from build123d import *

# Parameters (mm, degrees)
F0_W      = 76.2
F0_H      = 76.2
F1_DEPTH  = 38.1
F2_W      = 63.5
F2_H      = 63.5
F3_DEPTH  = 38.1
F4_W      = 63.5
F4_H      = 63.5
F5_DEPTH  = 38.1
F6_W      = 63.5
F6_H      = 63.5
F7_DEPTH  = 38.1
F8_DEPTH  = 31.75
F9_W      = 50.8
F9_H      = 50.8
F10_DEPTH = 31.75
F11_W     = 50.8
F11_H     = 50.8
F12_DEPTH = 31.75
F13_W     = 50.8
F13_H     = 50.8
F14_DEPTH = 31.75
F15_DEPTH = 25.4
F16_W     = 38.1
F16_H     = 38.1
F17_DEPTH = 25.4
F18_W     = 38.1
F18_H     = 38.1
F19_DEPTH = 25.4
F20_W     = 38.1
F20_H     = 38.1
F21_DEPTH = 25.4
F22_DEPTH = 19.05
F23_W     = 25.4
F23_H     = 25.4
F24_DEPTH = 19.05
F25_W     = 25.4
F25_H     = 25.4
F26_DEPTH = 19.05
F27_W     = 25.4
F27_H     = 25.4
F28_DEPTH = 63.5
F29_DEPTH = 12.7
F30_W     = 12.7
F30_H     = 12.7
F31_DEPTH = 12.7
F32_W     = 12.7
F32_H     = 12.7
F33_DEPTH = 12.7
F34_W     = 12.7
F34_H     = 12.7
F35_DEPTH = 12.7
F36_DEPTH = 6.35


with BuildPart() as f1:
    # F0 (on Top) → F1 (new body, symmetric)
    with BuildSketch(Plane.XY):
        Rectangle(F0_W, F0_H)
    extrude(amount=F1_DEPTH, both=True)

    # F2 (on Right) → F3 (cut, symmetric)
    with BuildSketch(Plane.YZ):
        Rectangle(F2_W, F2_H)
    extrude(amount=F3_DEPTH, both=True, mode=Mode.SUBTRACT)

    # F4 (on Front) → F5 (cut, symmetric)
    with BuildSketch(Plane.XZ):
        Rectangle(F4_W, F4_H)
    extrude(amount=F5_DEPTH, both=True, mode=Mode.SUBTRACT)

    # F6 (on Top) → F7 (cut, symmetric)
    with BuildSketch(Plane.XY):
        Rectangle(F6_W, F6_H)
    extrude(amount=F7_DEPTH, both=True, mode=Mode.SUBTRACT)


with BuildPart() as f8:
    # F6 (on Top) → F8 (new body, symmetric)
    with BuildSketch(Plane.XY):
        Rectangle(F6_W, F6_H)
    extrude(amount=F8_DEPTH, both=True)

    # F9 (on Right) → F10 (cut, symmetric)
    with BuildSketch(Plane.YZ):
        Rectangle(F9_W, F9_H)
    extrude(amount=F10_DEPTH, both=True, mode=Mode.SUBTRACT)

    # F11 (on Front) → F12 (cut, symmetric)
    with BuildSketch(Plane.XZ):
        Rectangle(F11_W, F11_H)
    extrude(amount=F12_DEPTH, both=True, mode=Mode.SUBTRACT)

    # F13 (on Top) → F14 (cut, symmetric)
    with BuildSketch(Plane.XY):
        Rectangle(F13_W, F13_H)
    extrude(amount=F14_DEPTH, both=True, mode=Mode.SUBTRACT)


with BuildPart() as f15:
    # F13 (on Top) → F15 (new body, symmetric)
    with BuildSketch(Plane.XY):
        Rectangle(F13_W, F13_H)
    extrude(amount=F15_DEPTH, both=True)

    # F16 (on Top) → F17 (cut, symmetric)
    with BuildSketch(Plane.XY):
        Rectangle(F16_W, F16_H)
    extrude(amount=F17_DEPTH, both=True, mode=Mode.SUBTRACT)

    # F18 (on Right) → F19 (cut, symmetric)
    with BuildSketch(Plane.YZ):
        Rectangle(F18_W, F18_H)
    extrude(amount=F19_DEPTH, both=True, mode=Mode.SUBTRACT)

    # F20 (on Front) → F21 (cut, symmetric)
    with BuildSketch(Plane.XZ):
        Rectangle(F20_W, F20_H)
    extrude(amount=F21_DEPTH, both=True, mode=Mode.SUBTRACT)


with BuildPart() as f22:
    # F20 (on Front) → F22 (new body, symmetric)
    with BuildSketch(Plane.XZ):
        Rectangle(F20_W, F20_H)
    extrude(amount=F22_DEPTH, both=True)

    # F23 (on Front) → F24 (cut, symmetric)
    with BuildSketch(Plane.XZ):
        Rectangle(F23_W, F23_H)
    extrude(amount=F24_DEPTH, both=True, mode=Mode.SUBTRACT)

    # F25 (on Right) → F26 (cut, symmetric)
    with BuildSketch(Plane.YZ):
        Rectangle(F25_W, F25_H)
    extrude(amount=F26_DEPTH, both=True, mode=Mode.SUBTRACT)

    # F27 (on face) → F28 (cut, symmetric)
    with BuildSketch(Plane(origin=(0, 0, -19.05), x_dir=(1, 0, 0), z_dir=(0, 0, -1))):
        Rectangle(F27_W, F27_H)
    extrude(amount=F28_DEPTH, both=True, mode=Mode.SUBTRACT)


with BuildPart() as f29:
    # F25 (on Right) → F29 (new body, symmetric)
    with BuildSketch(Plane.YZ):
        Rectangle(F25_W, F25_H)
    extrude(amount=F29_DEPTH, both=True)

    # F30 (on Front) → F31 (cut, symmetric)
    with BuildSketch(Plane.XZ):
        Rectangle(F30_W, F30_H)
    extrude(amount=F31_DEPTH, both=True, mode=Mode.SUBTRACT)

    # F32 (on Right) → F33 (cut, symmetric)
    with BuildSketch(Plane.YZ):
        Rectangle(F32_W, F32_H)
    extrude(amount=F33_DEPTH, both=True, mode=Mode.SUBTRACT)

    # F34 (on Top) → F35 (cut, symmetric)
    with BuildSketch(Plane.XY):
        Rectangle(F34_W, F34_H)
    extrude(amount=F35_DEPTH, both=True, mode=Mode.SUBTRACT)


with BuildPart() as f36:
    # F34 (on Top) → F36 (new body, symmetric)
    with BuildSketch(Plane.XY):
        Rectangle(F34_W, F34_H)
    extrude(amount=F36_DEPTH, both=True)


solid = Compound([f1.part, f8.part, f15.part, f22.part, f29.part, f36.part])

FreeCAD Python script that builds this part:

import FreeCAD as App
import Part
import Sketcher

V = App.Vector
Q = App.Units.Quantity

doc = App.newDocument("Part")
body = doc.addObject("PartDesign::Body", "Body")

# Sketch on XY plane
sketch1 = body.newObject("Sketcher::SketchObject", "Sketch")
sketch1.AttachmentSupport = (doc.getObject("XY_Plane"), [""])
sketch1.MapMode = "FlatFace"
sketch1.addGeometry(Part.LineSegment(V(-38.1, 38.1, 0), V(-38.1, -38.1, 0)), False)
sketch1.addGeometry(Part.LineSegment(V(-38.1, -38.1, 0), V(38.1, -38.1, 0)), False)
sketch1.addGeometry(Part.LineSegment(V(38.1, -38.1, 0), V(38.1, 38.1, 0)), False)
sketch1.addGeometry(Part.LineSegment(V(38.1, 38.1, 0), V(-38.1, 38.1, 0)), False)
sketch1.addConstraint(Sketcher.Constraint("Coincident", 0, 2, 1, 1))
sketch1.addConstraint(Sketcher.Constraint("Coincident", 1, 2, 2, 1))
sketch1.addConstraint(Sketcher.Constraint("Coincident", 2, 2, 3, 1))
sketch1.addConstraint(Sketcher.Constraint("Coincident", 3, 2, 0, 1))
sketch1.addConstraint(Sketcher.Constraint("Vertical", 0))
sketch1.addConstraint(Sketcher.Constraint("Horizontal", 1))
sketch1.addConstraint(Sketcher.Constraint("Vertical", 2))
sketch1.addConstraint(Sketcher.Constraint("Horizontal", 3))
sketch1.addConstraint(Sketcher.Constraint("Symmetric", 0, 2, 2, 2, -1, 1))
sketch1.addConstraint(Sketcher.Constraint("Equal", 3, 0))
sketch1.addConstraint(Sketcher.Constraint("DistanceX", 1, 1, 1, 2, Q("3 in")))
pad1 = body.newObject("PartDesign::Pad", "Pad")
pad1.Profile = sketch1
pad1.Length = Q("3 in")
pad1.Midplane = True

# Sketch on YZ plane
sketch2 = body.newObject("Sketcher::SketchObject", "Sketch001")
sketch2.AttachmentSupport = (doc.getObject("YZ_Plane"), [""])
sketch2.MapMode = "FlatFace"
sketch2.addGeometry(Part.LineSegment(V(-31.75, 31.75, 0), V(-31.75, -31.75, 0)), False)
sketch2.addGeometry(Part.LineSegment(V(-31.75, -31.75, 0), V(31.75, -31.75, 0)), False)
sketch2.addGeometry(Part.LineSegment(V(31.75, -31.75, 0), V(31.75, 31.75, 0)), False)
sketch2.addGeometry(Part.LineSegment(V(31.75, 31.75, 0), V(-31.75, 31.75, 0)), False)
sketch2.addConstraint(Sketcher.Constraint("Coincident", 0, 2, 1, 1))
sketch2.addConstraint(Sketcher.Constraint("Coincident", 1, 2, 2, 1))
sketch2.addConstraint(Sketcher.Constraint("Coincident", 2, 2, 3, 1))
sketch2.addConstraint(Sketcher.Constraint("Coincident", 3, 2, 0, 1))
sketch2.addConstraint(Sketcher.Constraint("Vertical", 0))
sketch2.addConstraint(Sketcher.Constraint("Horizontal", 1))
sketch2.addConstraint(Sketcher.Constraint("Vertical", 2))
sketch2.addConstraint(Sketcher.Constraint("Horizontal", 3))
sketch2.addConstraint(Sketcher.Constraint("Symmetric", 0, 2, 2, 2, -1, 1))
sketch2.addConstraint(Sketcher.Constraint("Equal", 3, 0))
sketch2.addConstraint(Sketcher.Constraint("DistanceX", 1, 1, 1, 2, Q("2.5 in")))
pocket1 = body.newObject("PartDesign::Pocket", "Pocket")
pocket1.Profile = sketch2
pocket1.Length = Q("3 in")
pocket1.Midplane = True

# Sketch on XZ plane
sketch3 = body.newObject("Sketcher::SketchObject", "Sketch002")
sketch3.AttachmentSupport = (doc.getObject("XZ_Plane"), [""])
sketch3.MapMode = "FlatFace"
sketch3.addGeometry(Part.LineSegment(V(-31.75, 31.75, 0), V(-31.75, -31.75, 0)), False)
sketch3.addGeometry(Part.LineSegment(V(-31.75, -31.75, 0), V(31.75, -31.75, 0)), False)
sketch3.addGeometry(Part.LineSegment(V(31.75, -31.75, 0), V(31.75, 31.75, 0)), False)
sketch3.addGeometry(Part.LineSegment(V(31.75, 31.75, 0), V(-31.75, 31.75, 0)), False)
sketch3.addConstraint(Sketcher.Constraint("Coincident", 0, 2, 1, 1))
sketch3.addConstraint(Sketcher.Constraint("Coincident", 1, 2, 2, 1))
sketch3.addConstraint(Sketcher.Constraint("Coincident", 2, 2, 3, 1))
sketch3.addConstraint(Sketcher.Constraint("Coincident", 3, 2, 0, 1))
sketch3.addConstraint(Sketcher.Constraint("Vertical", 0))
sketch3.addConstraint(Sketcher.Constraint("Horizontal", 1))
sketch3.addConstraint(Sketcher.Constraint("Vertical", 2))
sketch3.addConstraint(Sketcher.Constraint("Horizontal", 3))
sketch3.addConstraint(Sketcher.Constraint("Symmetric", 0, 2, 2, 2, -1, 1))
sketch3.addConstraint(Sketcher.Constraint("Equal", 3, 0))
sketch3.addConstraint(Sketcher.Constraint("DistanceX", 1, 1, 1, 2, Q("2.5 in")))
pocket2 = body.newObject("PartDesign::Pocket", "Pocket001")
pocket2.Profile = sketch3
pocket2.Length = Q("3 in")
pocket2.Midplane = True

# Sketch on XY plane
sketch4 = body.newObject("Sketcher::SketchObject", "Sketch003")
sketch4.AttachmentSupport = (doc.getObject("XY_Plane"), [""])
sketch4.MapMode = "FlatFace"
sketch4.addGeometry(Part.LineSegment(V(-31.75, 31.75, 0), V(-31.75, -31.75, 0)), False)
sketch4.addGeometry(Part.LineSegment(V(-31.75, -31.75, 0), V(31.75, -31.75, 0)), False)
sketch4.addGeometry(Part.LineSegment(V(31.75, -31.75, 0), V(31.75, 31.75, 0)), False)
sketch4.addGeometry(Part.LineSegment(V(31.75, 31.75, 0), V(-31.75, 31.75, 0)), False)
sketch4.addConstraint(Sketcher.Constraint("Coincident", 0, 2, 1, 1))
sketch4.addConstraint(Sketcher.Constraint("Coincident", 1, 2, 2, 1))
sketch4.addConstraint(Sketcher.Constraint("Coincident", 2, 2, 3, 1))
sketch4.addConstraint(Sketcher.Constraint("Coincident", 3, 2, 0, 1))
sketch4.addConstraint(Sketcher.Constraint("Vertical", 0))
sketch4.addConstraint(Sketcher.Constraint("Horizontal", 1))
sketch4.addConstraint(Sketcher.Constraint("Vertical", 2))
sketch4.addConstraint(Sketcher.Constraint("Horizontal", 3))
sketch4.addConstraint(Sketcher.Constraint("Symmetric", 0, 2, 2, 2, -1, 1))
sketch4.addConstraint(Sketcher.Constraint("Equal", 3, 0))
sketch4.addConstraint(Sketcher.Constraint("DistanceX", 1, 1, 1, 2, Q("2.5 in")))
pocket3 = body.newObject("PartDesign::Pocket", "Pocket002")
pocket3.Profile = sketch4
pocket3.Length = Q("3 in")
pocket3.Midplane = True
body2 = doc.addObject("PartDesign::Body", "Body001")

# Sketch on XY plane
sketch5 = body2.newObject("Sketcher::SketchObject", "Sketch004")
sketch5.AttachmentSupport = (doc.getObject("XY_Plane001"), [""])
sketch5.MapMode = "FlatFace"
sketch5.addGeometry(Part.LineSegment(V(-31.75, 31.75, 0), V(-31.75, -31.75, 0)), False)
sketch5.addGeometry(Part.LineSegment(V(-31.75, -31.75, 0), V(31.75, -31.75, 0)), False)
sketch5.addGeometry(Part.LineSegment(V(31.75, -31.75, 0), V(31.75, 31.75, 0)), False)
sketch5.addGeometry(Part.LineSegment(V(31.75, 31.75, 0), V(-31.75, 31.75, 0)), False)
sketch5.addConstraint(Sketcher.Constraint("Coincident", 0, 2, 1, 1))
sketch5.addConstraint(Sketcher.Constraint("Coincident", 1, 2, 2, 1))
sketch5.addConstraint(Sketcher.Constraint("Coincident", 2, 2, 3, 1))
sketch5.addConstraint(Sketcher.Constraint("Coincident", 3, 2, 0, 1))
sketch5.addConstraint(Sketcher.Constraint("Vertical", 0))
sketch5.addConstraint(Sketcher.Constraint("Horizontal", 1))
sketch5.addConstraint(Sketcher.Constraint("Vertical", 2))
sketch5.addConstraint(Sketcher.Constraint("Horizontal", 3))
sketch5.addConstraint(Sketcher.Constraint("Symmetric", 0, 2, 2, 2, -1, 1))
sketch5.addConstraint(Sketcher.Constraint("Equal", 3, 0))
sketch5.addConstraint(Sketcher.Constraint("DistanceX", 1, 1, 1, 2, Q("2.5 in")))
pad2 = body2.newObject("PartDesign::Pad", "Pad001")
pad2.Profile = sketch5
pad2.Length = Q("2.5 in")
pad2.Midplane = True

# Sketch on YZ plane
sketch6 = body2.newObject("Sketcher::SketchObject", "Sketch005")
sketch6.AttachmentSupport = (doc.getObject("YZ_Plane001"), [""])
sketch6.MapMode = "FlatFace"
sketch6.addGeometry(Part.LineSegment(V(-25.4, 25.4, 0), V(-25.4, -25.4, 0)), False)
sketch6.addGeometry(Part.LineSegment(V(-25.4, -25.4, 0), V(25.4, -25.4, 0)), False)
sketch6.addGeometry(Part.LineSegment(V(25.4, -25.4, 0), V(25.4, 25.4, 0)), False)
sketch6.addGeometry(Part.LineSegment(V(25.4, 25.4, 0), V(-25.4, 25.4, 0)), False)
sketch6.addConstraint(Sketcher.Constraint("Coincident", 0, 2, 1, 1))
sketch6.addConstraint(Sketcher.Constraint("Coincident", 1, 2, 2, 1))
sketch6.addConstraint(Sketcher.Constraint("Coincident", 2, 2, 3, 1))
sketch6.addConstraint(Sketcher.Constraint("Coincident", 3, 2, 0, 1))
sketch6.addConstraint(Sketcher.Constraint("Vertical", 0))
sketch6.addConstraint(Sketcher.Constraint("Horizontal", 1))
sketch6.addConstraint(Sketcher.Constraint("Vertical", 2))
sketch6.addConstraint(Sketcher.Constraint("Horizontal", 3))
sketch6.addConstraint(Sketcher.Constraint("Symmetric", 0, 2, 2, 2, -1, 1))
sketch6.addConstraint(Sketcher.Constraint("Equal", 3, 0))
sketch6.addConstraint(Sketcher.Constraint("DistanceX", 1, 1, 1, 2, Q("2 in")))
pocket4 = body2.newObject("PartDesign::Pocket", "Pocket003")
pocket4.Profile = sketch6
pocket4.Length = Q("2.5 in")
pocket4.Midplane = True

# Sketch on XZ plane
sketch7 = body2.newObject("Sketcher::SketchObject", "Sketch006")
sketch7.AttachmentSupport = (doc.getObject("XZ_Plane001"), [""])
sketch7.MapMode = "FlatFace"
sketch7.addGeometry(Part.LineSegment(V(-25.4, 25.4, 0), V(-25.4, -25.4, 0)), False)
sketch7.addGeometry(Part.LineSegment(V(-25.4, -25.4, 0), V(25.4, -25.4, 0)), False)
sketch7.addGeometry(Part.LineSegment(V(25.4, -25.4, 0), V(25.4, 25.4, 0)), False)
sketch7.addGeometry(Part.LineSegment(V(25.4, 25.4, 0), V(-25.4, 25.4, 0)), False)
sketch7.addConstraint(Sketcher.Constraint("Coincident", 0, 2, 1, 1))
sketch7.addConstraint(Sketcher.Constraint("Coincident", 1, 2, 2, 1))
sketch7.addConstraint(Sketcher.Constraint("Coincident", 2, 2, 3, 1))
sketch7.addConstraint(Sketcher.Constraint("Coincident", 3, 2, 0, 1))
sketch7.addConstraint(Sketcher.Constraint("Vertical", 0))
sketch7.addConstraint(Sketcher.Constraint("Horizontal", 1))
sketch7.addConstraint(Sketcher.Constraint("Vertical", 2))
sketch7.addConstraint(Sketcher.Constraint("Horizontal", 3))
sketch7.addConstraint(Sketcher.Constraint("Symmetric", 0, 2, 2, 2, -1, 1))
sketch7.addConstraint(Sketcher.Constraint("Equal", 3, 0))
sketch7.addConstraint(Sketcher.Constraint("DistanceX", 1, 1, 1, 2, Q("2 in")))
pocket5 = body2.newObject("PartDesign::Pocket", "Pocket004")
pocket5.Profile = sketch7
pocket5.Length = Q("2.5 in")
pocket5.Midplane = True

# Sketch on XY plane
sketch8 = body2.newObject("Sketcher::SketchObject", "Sketch007")
sketch8.AttachmentSupport = (doc.getObject("XY_Plane001"), [""])
sketch8.MapMode = "FlatFace"
sketch8.addGeometry(Part.LineSegment(V(-25.4, 25.4, 0), V(-25.4, -25.4, 0)), False)
sketch8.addGeometry(Part.LineSegment(V(-25.4, -25.4, 0), V(25.4, -25.4, 0)), False)
sketch8.addGeometry(Part.LineSegment(V(25.4, -25.4, 0), V(25.4, 25.4, 0)), False)
sketch8.addGeometry(Part.LineSegment(V(25.4, 25.4, 0), V(-25.4, 25.4, 0)), False)
sketch8.addConstraint(Sketcher.Constraint("Coincident", 0, 2, 1, 1))
sketch8.addConstraint(Sketcher.Constraint("Coincident", 1, 2, 2, 1))
sketch8.addConstraint(Sketcher.Constraint("Coincident", 2, 2, 3, 1))
sketch8.addConstraint(Sketcher.Constraint("Coincident", 3, 2, 0, 1))
sketch8.addConstraint(Sketcher.Constraint("Vertical", 0))
sketch8.addConstraint(Sketcher.Constraint("Horizontal", 1))
sketch8.addConstraint(Sketcher.Constraint("Vertical", 2))
sketch8.addConstraint(Sketcher.Constraint("Horizontal", 3))
sketch8.addConstraint(Sketcher.Constraint("Symmetric", 0, 2, 2, 2, -1, 1))
sketch8.addConstraint(Sketcher.Constraint("Equal", 3, 0))
sketch8.addConstraint(Sketcher.Constraint("DistanceX", 1, 1, 1, 2, Q("2 in")))
pocket6 = body2.newObject("PartDesign::Pocket", "Pocket005")
pocket6.Profile = sketch8
pocket6.Length = Q("2.5 in")
pocket6.Midplane = True
body3 = doc.addObject("PartDesign::Body", "Body002")

# Sketch on XY plane
sketch9 = body3.newObject("Sketcher::SketchObject", "Sketch008")
sketch9.AttachmentSupport = (doc.getObject("XY_Plane002"), [""])
sketch9.MapMode = "FlatFace"
sketch9.addGeometry(Part.LineSegment(V(-25.4, 25.4, 0), V(-25.4, -25.4, 0)), False)
sketch9.addGeometry(Part.LineSegment(V(-25.4, -25.4, 0), V(25.4, -25.4, 0)), False)
sketch9.addGeometry(Part.LineSegment(V(25.4, -25.4, 0), V(25.4, 25.4, 0)), False)
sketch9.addGeometry(Part.LineSegment(V(25.4, 25.4, 0), V(-25.4, 25.4, 0)), False)
sketch9.addConstraint(Sketcher.Constraint("Coincident", 0, 2, 1, 1))
sketch9.addConstraint(Sketcher.Constraint("Coincident", 1, 2, 2, 1))
sketch9.addConstraint(Sketcher.Constraint("Coincident", 2, 2, 3, 1))
sketch9.addConstraint(Sketcher.Constraint("Coincident", 3, 2, 0, 1))
sketch9.addConstraint(Sketcher.Constraint("Vertical", 0))
sketch9.addConstraint(Sketcher.Constraint("Horizontal", 1))
sketch9.addConstraint(Sketcher.Constraint("Vertical", 2))
sketch9.addConstraint(Sketcher.Constraint("Horizontal", 3))
sketch9.addConstraint(Sketcher.Constraint("Symmetric", 0, 2, 2, 2, -1, 1))
sketch9.addConstraint(Sketcher.Constraint("Equal", 3, 0))
sketch9.addConstraint(Sketcher.Constraint("DistanceX", 1, 1, 1, 2, Q("2 in")))
pad3 = body3.newObject("PartDesign::Pad", "Pad002")
pad3.Profile = sketch9
pad3.Length = Q("2 in")
pad3.Midplane = True

# Sketch on XY plane
sketch10 = body3.newObject("Sketcher::SketchObject", "Sketch009")
sketch10.AttachmentSupport = (doc.getObject("XY_Plane002"), [""])
sketch10.MapMode = "FlatFace"
sketch10.addGeometry(Part.LineSegment(V(-19.05, 19.05, 0), V(-19.05, -19.05, 0)), False)
sketch10.addGeometry(Part.LineSegment(V(-19.05, -19.05, 0), V(19.05, -19.05, 0)), False)
sketch10.addGeometry(Part.LineSegment(V(19.05, -19.05, 0), V(19.05, 19.05, 0)), False)
sketch10.addGeometry(Part.LineSegment(V(19.05, 19.05, 0), V(-19.05, 19.05, 0)), False)
sketch10.addConstraint(Sketcher.Constraint("Coincident", 0, 2, 1, 1))
sketch10.addConstraint(Sketcher.Constraint("Coincident", 1, 2, 2, 1))
sketch10.addConstraint(Sketcher.Constraint("Coincident", 2, 2, 3, 1))
sketch10.addConstraint(Sketcher.Constraint("Coincident", 3, 2, 0, 1))
sketch10.addConstraint(Sketcher.Constraint("Vertical", 0))
sketch10.addConstraint(Sketcher.Constraint("Horizontal", 1))
sketch10.addConstraint(Sketcher.Constraint("Vertical", 2))
sketch10.addConstraint(Sketcher.Constraint("Horizontal", 3))
sketch10.addConstraint(Sketcher.Constraint("Symmetric", 0, 2, 2, 2, -1, 1))
sketch10.addConstraint(Sketcher.Constraint("Equal", 3, 0))
sketch10.addConstraint(Sketcher.Constraint("DistanceX", 1, 1, 1, 2, Q("1.5 in")))
pocket7 = body3.newObject("PartDesign::Pocket", "Pocket006")
pocket7.Profile = sketch10
pocket7.Length = Q("2 in")
pocket7.Midplane = True

# Sketch on YZ plane
sketch11 = body3.newObject("Sketcher::SketchObject", "Sketch010")
sketch11.AttachmentSupport = (doc.getObject("YZ_Plane002"), [""])
sketch11.MapMode = "FlatFace"
sketch11.addGeometry(Part.LineSegment(V(-19.05, 19.05, 0), V(-19.05, -19.05, 0)), False)
sketch11.addGeometry(Part.LineSegment(V(-19.05, -19.05, 0), V(19.05, -19.05, 0)), False)
sketch11.addGeometry(Part.LineSegment(V(19.05, -19.05, 0), V(19.05, 19.05, 0)), False)
sketch11.addGeometry(Part.LineSegment(V(19.05, 19.05, 0), V(-19.05, 19.05, 0)), False)
sketch11.addConstraint(Sketcher.Constraint("Coincident", 0, 2, 1, 1))
sketch11.addConstraint(Sketcher.Constraint("Coincident", 1, 2, 2, 1))
sketch11.addConstraint(Sketcher.Constraint("Coincident", 2, 2, 3, 1))
sketch11.addConstraint(Sketcher.Constraint("Coincident", 3, 2, 0, 1))
sketch11.addConstraint(Sketcher.Constraint("Vertical", 0))
sketch11.addConstraint(Sketcher.Constraint("Horizontal", 1))
sketch11.addConstraint(Sketcher.Constraint("Vertical", 2))
sketch11.addConstraint(Sketcher.Constraint("Horizontal", 3))
sketch11.addConstraint(Sketcher.Constraint("Symmetric", 0, 2, 2, 2, -1, 1))
sketch11.addConstraint(Sketcher.Constraint("Equal", 3, 0))
sketch11.addConstraint(Sketcher.Constraint("DistanceX", 1, 1, 1, 2, Q("1.5 in")))
pocket8 = body3.newObject("PartDesign::Pocket", "Pocket007")
pocket8.Profile = sketch11
pocket8.Length = Q("2 in")
pocket8.Midplane = True

# Sketch on XZ plane
sketch12 = body3.newObject("Sketcher::SketchObject", "Sketch011")
sketch12.AttachmentSupport = (doc.getObject("XZ_Plane002"), [""])
sketch12.MapMode = "FlatFace"
sketch12.addGeometry(Part.LineSegment(V(-19.05, 19.05, 0), V(-19.05, -19.05, 0)), False)
sketch12.addGeometry(Part.LineSegment(V(-19.05, -19.05, 0), V(19.05, -19.05, 0)), False)
sketch12.addGeometry(Part.LineSegment(V(19.05, -19.05, 0), V(19.05, 19.05, 0)), False)
sketch12.addGeometry(Part.LineSegment(V(19.05, 19.05, 0), V(-19.05, 19.05, 0)), False)
sketch12.addConstraint(Sketcher.Constraint("Coincident", 0, 2, 1, 1))
sketch12.addConstraint(Sketcher.Constraint("Coincident", 1, 2, 2, 1))
sketch12.addConstraint(Sketcher.Constraint("Coincident", 2, 2, 3, 1))
sketch12.addConstraint(Sketcher.Constraint("Coincident", 3, 2, 0, 1))
sketch12.addConstraint(Sketcher.Constraint("Vertical", 0))
sketch12.addConstraint(Sketcher.Constraint("Horizontal", 1))
sketch12.addConstraint(Sketcher.Constraint("Vertical", 2))
sketch12.addConstraint(Sketcher.Constraint("Horizontal", 3))
sketch12.addConstraint(Sketcher.Constraint("Symmetric", 0, 2, 2, 2, -1, 1))
sketch12.addConstraint(Sketcher.Constraint("Equal", 3, 0))
sketch12.addConstraint(Sketcher.Constraint("DistanceX", 1, 1, 1, 2, Q("1.5 in")))
pocket9 = body3.newObject("PartDesign::Pocket", "Pocket008")
pocket9.Profile = sketch12
pocket9.Length = Q("2 in")
pocket9.Midplane = True
body4 = doc.addObject("PartDesign::Body", "Body003")

# Sketch on XZ plane
sketch13 = body4.newObject("Sketcher::SketchObject", "Sketch012")
sketch13.AttachmentSupport = (doc.getObject("XZ_Plane003"), [""])
sketch13.MapMode = "FlatFace"
sketch13.addGeometry(Part.LineSegment(V(-19.05, 19.05, 0), V(-19.05, -19.05, 0)), False)
sketch13.addGeometry(Part.LineSegment(V(-19.05, -19.05, 0), V(19.05, -19.05, 0)), False)
sketch13.addGeometry(Part.LineSegment(V(19.05, -19.05, 0), V(19.05, 19.05, 0)), False)
sketch13.addGeometry(Part.LineSegment(V(19.05, 19.05, 0), V(-19.05, 19.05, 0)), False)
sketch13.addConstraint(Sketcher.Constraint("Coincident", 0, 2, 1, 1))
sketch13.addConstraint(Sketcher.Constraint("Coincident", 1, 2, 2, 1))
sketch13.addConstraint(Sketcher.Constraint("Coincident", 2, 2, 3, 1))
sketch13.addConstraint(Sketcher.Constraint("Coincident", 3, 2, 0, 1))
sketch13.addConstraint(Sketcher.Constraint("Vertical", 0))
sketch13.addConstraint(Sketcher.Constraint("Horizontal", 1))
sketch13.addConstraint(Sketcher.Constraint("Vertical", 2))
sketch13.addConstraint(Sketcher.Constraint("Horizontal", 3))
sketch13.addConstraint(Sketcher.Constraint("Symmetric", 0, 2, 2, 2, -1, 1))
sketch13.addConstraint(Sketcher.Constraint("Equal", 3, 0))
sketch13.addConstraint(Sketcher.Constraint("DistanceX", 1, 1, 1, 2, Q("1.5 in")))
pad4 = body4.newObject("PartDesign::Pad", "Pad003")
pad4.Profile = sketch13
pad4.Length = Q("1.5 in")
pad4.Midplane = True

# Sketch on XZ plane
sketch14 = body4.newObject("Sketcher::SketchObject", "Sketch013")
sketch14.AttachmentSupport = (doc.getObject("XZ_Plane003"), [""])
sketch14.MapMode = "FlatFace"
sketch14.addGeometry(Part.LineSegment(V(-12.7, 12.7, 0), V(-12.7, -12.7, 0)), False)
sketch14.addGeometry(Part.LineSegment(V(-12.7, -12.7, 0), V(12.7, -12.7, 0)), False)
sketch14.addGeometry(Part.LineSegment(V(12.7, -12.7, 0), V(12.7, 12.7, 0)), False)
sketch14.addGeometry(Part.LineSegment(V(12.7, 12.7, 0), V(-12.7, 12.7, 0)), False)
sketch14.addConstraint(Sketcher.Constraint("Coincident", 0, 2, 1, 1))
sketch14.addConstraint(Sketcher.Constraint("Coincident", 1, 2, 2, 1))
sketch14.addConstraint(Sketcher.Constraint("Coincident", 2, 2, 3, 1))
sketch14.addConstraint(Sketcher.Constraint("Coincident", 3, 2, 0, 1))
sketch14.addConstraint(Sketcher.Constraint("Vertical", 0))
sketch14.addConstraint(Sketcher.Constraint("Horizontal", 1))
sketch14.addConstraint(Sketcher.Constraint("Vertical", 2))
sketch14.addConstraint(Sketcher.Constraint("Horizontal", 3))
sketch14.addConstraint(Sketcher.Constraint("Symmetric", 0, 2, 2, 2, -1, 1))
sketch14.addConstraint(Sketcher.Constraint("Equal", 3, 0))
sketch14.addConstraint(Sketcher.Constraint("DistanceX", 1, 1, 1, 2, Q("1 in")))
pocket10 = body4.newObject("PartDesign::Pocket", "Pocket009")
pocket10.Profile = sketch14
pocket10.Length = Q("1.5 in")
pocket10.Midplane = True

# Sketch on YZ plane
sketch15 = body4.newObject("Sketcher::SketchObject", "Sketch014")
sketch15.AttachmentSupport = (doc.getObject("YZ_Plane003"), [""])
sketch15.MapMode = "FlatFace"
sketch15.addGeometry(Part.LineSegment(V(-12.7, 12.7, 0), V(-12.7, -12.7, 0)), False)
sketch15.addGeometry(Part.LineSegment(V(-12.7, -12.7, 0), V(12.7, -12.7, 0)), False)
sketch15.addGeometry(Part.LineSegment(V(12.7, -12.7, 0), V(12.7, 12.7, 0)), False)
sketch15.addGeometry(Part.LineSegment(V(12.7, 12.7, 0), V(-12.7, 12.7, 0)), False)
sketch15.addConstraint(Sketcher.Constraint("Coincident", 0, 2, 1, 1))
sketch15.addConstraint(Sketcher.Constraint("Coincident", 1, 2, 2, 1))
sketch15.addConstraint(Sketcher.Constraint("Coincident", 2, 2, 3, 1))
sketch15.addConstraint(Sketcher.Constraint("Coincident", 3, 2, 0, 1))
sketch15.addConstraint(Sketcher.Constraint("Vertical", 0))
sketch15.addConstraint(Sketcher.Constraint("Horizontal", 1))
sketch15.addConstraint(Sketcher.Constraint("Vertical", 2))
sketch15.addConstraint(Sketcher.Constraint("Horizontal", 3))
sketch15.addConstraint(Sketcher.Constraint("Symmetric", 0, 2, 2, 2, -1, 1))
sketch15.addConstraint(Sketcher.Constraint("Equal", 3, 0))
sketch15.addConstraint(Sketcher.Constraint("DistanceX", 1, 1, 1, 2, Q("1 in")))
pocket11 = body4.newObject("PartDesign::Pocket", "Pocket010")
pocket11.Profile = sketch15
pocket11.Length = Q("1.5 in")
pocket11.Midplane = True

# Sketch on XY plane
sketch16 = body4.newObject("Sketcher::SketchObject", "Sketch015")
sketch16.AttachmentSupport = (doc.getObject("XY_Plane003"), [""])
sketch16.MapMode = "FlatFace"
sketch16.AttachmentOffset = App.Placement(V(0, 0, -0.75 * 25.4), App.Rotation())
sketch16.addGeometry(Part.LineSegment(V(-12.7, -12.7, 0), V(-12.7, 12.7, 0)), False)
sketch16.addGeometry(Part.LineSegment(V(-12.7, 12.7, 0), V(12.7, 12.7, 0)), False)
sketch16.addGeometry(Part.LineSegment(V(12.7, 12.7, 0), V(12.7, -12.7, 0)), False)
sketch16.addGeometry(Part.LineSegment(V(12.7, -12.7, 0), V(-12.7, -12.7, 0)), False)
sketch16.addConstraint(Sketcher.Constraint("Coincident", 0, 2, 1, 1))
sketch16.addConstraint(Sketcher.Constraint("Coincident", 1, 2, 2, 1))
sketch16.addConstraint(Sketcher.Constraint("Coincident", 2, 2, 3, 1))
sketch16.addConstraint(Sketcher.Constraint("Coincident", 3, 2, 0, 1))
sketch16.addConstraint(Sketcher.Constraint("Vertical", 0))
sketch16.addConstraint(Sketcher.Constraint("Horizontal", 1))
sketch16.addConstraint(Sketcher.Constraint("Vertical", 2))
sketch16.addConstraint(Sketcher.Constraint("Horizontal", 3))
sketch16.addConstraint(Sketcher.Constraint("Symmetric", 0, 2, 2, 2, -1, 1))
sketch16.addConstraint(Sketcher.Constraint("Equal", 3, 0))
sketch16.addConstraint(Sketcher.Constraint("DistanceX", 1, 1, 1, 2, Q("1 in")))
pocket12 = body4.newObject("PartDesign::Pocket", "Pocket011")
pocket12.Profile = sketch16
pocket12.Length = Q("5 in")
pocket12.Midplane = True
body5 = doc.addObject("PartDesign::Body", "Body004")

# Sketch on YZ plane
sketch17 = body5.newObject("Sketcher::SketchObject", "Sketch016")
sketch17.AttachmentSupport = (doc.getObject("YZ_Plane004"), [""])
sketch17.MapMode = "FlatFace"
sketch17.addGeometry(Part.LineSegment(V(-12.7, 12.7, 0), V(-12.7, -12.7, 0)), False)
sketch17.addGeometry(Part.LineSegment(V(-12.7, -12.7, 0), V(12.7, -12.7, 0)), False)
sketch17.addGeometry(Part.LineSegment(V(12.7, -12.7, 0), V(12.7, 12.7, 0)), False)
sketch17.addGeometry(Part.LineSegment(V(12.7, 12.7, 0), V(-12.7, 12.7, 0)), False)
sketch17.addConstraint(Sketcher.Constraint("Coincident", 0, 2, 1, 1))
sketch17.addConstraint(Sketcher.Constraint("Coincident", 1, 2, 2, 1))
sketch17.addConstraint(Sketcher.Constraint("Coincident", 2, 2, 3, 1))
sketch17.addConstraint(Sketcher.Constraint("Coincident", 3, 2, 0, 1))
sketch17.addConstraint(Sketcher.Constraint("Vertical", 0))
sketch17.addConstraint(Sketcher.Constraint("Horizontal", 1))
sketch17.addConstraint(Sketcher.Constraint("Vertical", 2))
sketch17.addConstraint(Sketcher.Constraint("Horizontal", 3))
sketch17.addConstraint(Sketcher.Constraint("Symmetric", 0, 2, 2, 2, -1, 1))
sketch17.addConstraint(Sketcher.Constraint("Equal", 3, 0))
sketch17.addConstraint(Sketcher.Constraint("DistanceX", 1, 1, 1, 2, Q("1 in")))
pad5 = body5.newObject("PartDesign::Pad", "Pad004")
pad5.Profile = sketch17
pad5.Length = Q("1 in")
pad5.Midplane = True

# Sketch on XZ plane
sketch18 = body5.newObject("Sketcher::SketchObject", "Sketch017")
sketch18.AttachmentSupport = (doc.getObject("XZ_Plane004"), [""])
sketch18.MapMode = "FlatFace"
sketch18.addGeometry(Part.LineSegment(V(-6.35, 6.35, 0), V(-6.35, -6.35, 0)), False)
sketch18.addGeometry(Part.LineSegment(V(-6.35, -6.35, 0), V(6.35, -6.35, 0)), False)
sketch18.addGeometry(Part.LineSegment(V(6.35, -6.35, 0), V(6.35, 6.35, 0)), False)
sketch18.addGeometry(Part.LineSegment(V(6.35, 6.35, 0), V(-6.35, 6.35, 0)), False)
sketch18.addConstraint(Sketcher.Constraint("Coincident", 0, 2, 1, 1))
sketch18.addConstraint(Sketcher.Constraint("Coincident", 1, 2, 2, 1))
sketch18.addConstraint(Sketcher.Constraint("Coincident", 2, 2, 3, 1))
sketch18.addConstraint(Sketcher.Constraint("Coincident", 3, 2, 0, 1))
sketch18.addConstraint(Sketcher.Constraint("Vertical", 0))
sketch18.addConstraint(Sketcher.Constraint("Horizontal", 1))
sketch18.addConstraint(Sketcher.Constraint("Vertical", 2))
sketch18.addConstraint(Sketcher.Constraint("Horizontal", 3))
sketch18.addConstraint(Sketcher.Constraint("Symmetric", 0, 2, 2, 2, -1, 1))
sketch18.addConstraint(Sketcher.Constraint("Equal", 3, 0))
sketch18.addConstraint(Sketcher.Constraint("DistanceX", 1, 1, 1, 2, Q("0.5 in")))
pocket13 = body5.newObject("PartDesign::Pocket", "Pocket012")
pocket13.Profile = sketch18
pocket13.Length = Q("1 in")
pocket13.Midplane = True

# Sketch on YZ plane
sketch19 = body5.newObject("Sketcher::SketchObject", "Sketch018")
sketch19.AttachmentSupport = (doc.getObject("YZ_Plane004"), [""])
sketch19.MapMode = "FlatFace"
sketch19.addGeometry(Part.LineSegment(V(-6.35, 6.35, 0), V(-6.35, -6.35, 0)), False)
sketch19.addGeometry(Part.LineSegment(V(-6.35, -6.35, 0), V(6.35, -6.35, 0)), False)
sketch19.addGeometry(Part.LineSegment(V(6.35, -6.35, 0), V(6.35, 6.35, 0)), False)
sketch19.addGeometry(Part.LineSegment(V(6.35, 6.35, 0), V(-6.35, 6.35, 0)), False)
sketch19.addConstraint(Sketcher.Constraint("Coincident", 0, 2, 1, 1))
sketch19.addConstraint(Sketcher.Constraint("Coincident", 1, 2, 2, 1))
sketch19.addConstraint(Sketcher.Constraint("Coincident", 2, 2, 3, 1))
sketch19.addConstraint(Sketcher.Constraint("Coincident", 3, 2, 0, 1))
sketch19.addConstraint(Sketcher.Constraint("Vertical", 0))
sketch19.addConstraint(Sketcher.Constraint("Horizontal", 1))
sketch19.addConstraint(Sketcher.Constraint("Vertical", 2))
sketch19.addConstraint(Sketcher.Constraint("Horizontal", 3))
sketch19.addConstraint(Sketcher.Constraint("Symmetric", 0, 2, 2, 2, -1, 1))
sketch19.addConstraint(Sketcher.Constraint("Equal", 3, 0))
sketch19.addConstraint(Sketcher.Constraint("DistanceX", 1, 1, 1, 2, Q("0.5 in")))
pocket14 = body5.newObject("PartDesign::Pocket", "Pocket013")
pocket14.Profile = sketch19
pocket14.Length = Q("1 in")
pocket14.Midplane = True

# Sketch on XY plane
sketch20 = body5.newObject("Sketcher::SketchObject", "Sketch019")
sketch20.AttachmentSupport = (doc.getObject("XY_Plane004"), [""])
sketch20.MapMode = "FlatFace"
sketch20.addGeometry(Part.LineSegment(V(-6.35, 6.35, 0), V(-6.35, -6.35, 0)), False)
sketch20.addGeometry(Part.LineSegment(V(-6.35, -6.35, 0), V(6.35, -6.35, 0)), False)
sketch20.addGeometry(Part.LineSegment(V(6.35, -6.35, 0), V(6.35, 6.35, 0)), False)
sketch20.addGeometry(Part.LineSegment(V(6.35, 6.35, 0), V(-6.35, 6.35, 0)), False)
sketch20.addConstraint(Sketcher.Constraint("Coincident", 0, 2, 1, 1))
sketch20.addConstraint(Sketcher.Constraint("Coincident", 1, 2, 2, 1))
sketch20.addConstraint(Sketcher.Constraint("Coincident", 2, 2, 3, 1))
sketch20.addConstraint(Sketcher.Constraint("Coincident", 3, 2, 0, 1))
sketch20.addConstraint(Sketcher.Constraint("Vertical", 0))
sketch20.addConstraint(Sketcher.Constraint("Horizontal", 1))
sketch20.addConstraint(Sketcher.Constraint("Vertical", 2))
sketch20.addConstraint(Sketcher.Constraint("Horizontal", 3))
sketch20.addConstraint(Sketcher.Constraint("Symmetric", 0, 2, 2, 2, -1, 1))
sketch20.addConstraint(Sketcher.Constraint("Equal", 3, 0))
sketch20.addConstraint(Sketcher.Constraint("DistanceX", 1, 1, 1, 2, Q("0.5 in")))
pocket15 = body5.newObject("PartDesign::Pocket", "Pocket014")
pocket15.Profile = sketch20
pocket15.Length = Q("1 in")
pocket15.Midplane = True
body6 = doc.addObject("PartDesign::Body", "Body005")

# Sketch on XY plane
sketch21 = body6.newObject("Sketcher::SketchObject", "Sketch020")
sketch21.AttachmentSupport = (doc.getObject("XY_Plane005"), [""])
sketch21.MapMode = "FlatFace"
sketch21.addGeometry(Part.LineSegment(V(-6.35, 6.35, 0), V(-6.35, -6.35, 0)), False)
sketch21.addGeometry(Part.LineSegment(V(-6.35, -6.35, 0), V(6.35, -6.35, 0)), False)
sketch21.addGeometry(Part.LineSegment(V(6.35, -6.35, 0), V(6.35, 6.35, 0)), False)
sketch21.addGeometry(Part.LineSegment(V(6.35, 6.35, 0), V(-6.35, 6.35, 0)), False)
sketch21.addConstraint(Sketcher.Constraint("Coincident", 0, 2, 1, 1))
sketch21.addConstraint(Sketcher.Constraint("Coincident", 1, 2, 2, 1))
sketch21.addConstraint(Sketcher.Constraint("Coincident", 2, 2, 3, 1))
sketch21.addConstraint(Sketcher.Constraint("Coincident", 3, 2, 0, 1))
sketch21.addConstraint(Sketcher.Constraint("Vertical", 0))
sketch21.addConstraint(Sketcher.Constraint("Horizontal", 1))
sketch21.addConstraint(Sketcher.Constraint("Vertical", 2))
sketch21.addConstraint(Sketcher.Constraint("Horizontal", 3))
sketch21.addConstraint(Sketcher.Constraint("Symmetric", 0, 2, 2, 2, -1, 1))
sketch21.addConstraint(Sketcher.Constraint("Equal", 3, 0))
sketch21.addConstraint(Sketcher.Constraint("DistanceX", 1, 1, 1, 2, Q("0.5 in")))
pad6 = body6.newObject("PartDesign::Pad", "Pad005")
pad6.Profile = sketch21
pad6.Length = Q("0.5 in")
pad6.Midplane = True

doc.recompute()
